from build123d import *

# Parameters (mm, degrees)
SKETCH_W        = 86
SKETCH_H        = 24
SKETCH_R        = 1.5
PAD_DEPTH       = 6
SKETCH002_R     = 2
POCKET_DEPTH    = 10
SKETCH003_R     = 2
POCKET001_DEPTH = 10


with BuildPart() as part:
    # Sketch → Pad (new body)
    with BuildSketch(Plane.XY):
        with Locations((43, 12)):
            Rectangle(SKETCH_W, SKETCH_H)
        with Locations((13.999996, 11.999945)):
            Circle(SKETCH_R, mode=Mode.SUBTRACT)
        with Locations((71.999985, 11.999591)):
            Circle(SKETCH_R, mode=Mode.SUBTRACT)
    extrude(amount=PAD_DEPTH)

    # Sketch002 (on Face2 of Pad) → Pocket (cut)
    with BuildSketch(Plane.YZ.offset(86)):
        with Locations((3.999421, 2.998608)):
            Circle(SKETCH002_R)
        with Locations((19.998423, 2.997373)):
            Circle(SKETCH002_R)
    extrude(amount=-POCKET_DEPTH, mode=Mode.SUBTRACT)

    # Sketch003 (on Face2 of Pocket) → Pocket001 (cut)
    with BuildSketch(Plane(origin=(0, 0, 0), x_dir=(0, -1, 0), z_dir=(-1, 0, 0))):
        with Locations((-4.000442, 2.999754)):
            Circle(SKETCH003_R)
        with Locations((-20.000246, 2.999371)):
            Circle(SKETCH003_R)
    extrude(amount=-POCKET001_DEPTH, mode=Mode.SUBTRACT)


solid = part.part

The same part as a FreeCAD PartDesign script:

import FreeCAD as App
import Part
import Sketcher
Q = App.Units.Quantity

doc = App.newDocument("Part")
params = doc.addObject("Spreadsheet::Sheet", "Params")
for row, (alias, value) in enumerate([
    ("sketch1_diameter", "3 mm"),
    ("sketch1_width", "86 mm"),
    ("sketch1_height", "24 mm"),
    ("pad1_length", "6 mm"),
    ("sketch2_diameter", "4 mm"),
    ("pocket1_length", "10 mm"),
    ("sketch3_diameter", "4 mm"),
    ("pocket2_length", "10 mm"),
], start=1):
    params.set(f"A{row}", alias)
    params.set(f"B{row}", "=" + value)
    params.setAlias(f"B{row}", alias)

body = doc.addObject("PartDesign::Body", "Body")

# Sketch on XY plane
sketch1 = body.newObject("Sketcher::SketchObject", "Sketch")
sketch1.AttachmentSupport = (doc.getObject("XY_Plane"), [""])
sketch1.MapMode = "FlatFace"
sketch1.addGeometry(Part.LineSegment(App.Vector(0, 24, 0), App.Vector(0, 0, 0)), False)
sketch1.addGeometry(Part.LineSegment(App.Vector(0, 0, 0), App.Vector(86, 0, 0)), False)
sketch1.addGeometry(Part.LineSegment(App.Vector(86, 0, 0), App.Vector(86, 24, 0)), False)
sketch1.addGeometry(Part.LineSegment(App.Vector(86, 24, 0), App.Vector(0, 24, 0)), False)
sketch1.addGeometry(Part.Circle(App.Vector(72, 12, 0), App.Vector(0, 0, 1), 1.5), False)
sketch1.addGeometry(Part.Circle(App.Vector(14, 12, 0), App.Vector(0, 0, 1), 1.5), False)
sketch1.addConstraint(Sketcher.Constraint("Coincident", 0, 2, 1, 1))
sketch1.addConstraint(Sketcher.Constraint("Coincident", 1, 2, 2, 1))
sketch1.addConstraint(Sketcher.Constraint("Coincident", 2, 2, 3, 1))
sketch1.addConstraint(Sketcher.Constraint("Coincident", 3, 2, 0, 1))
sketch1.addConstraint(Sketcher.Constraint("Vertical", 0))
sketch1.addConstraint(Sketcher.Constraint("Horizontal", 1))
sketch1.addConstraint(Sketcher.Constraint("Vertical", 2))
sketch1.addConstraint(Sketcher.Constraint("Horizontal", 3))
sketch1.addConstraint(Sketcher.Constraint("Coincident", 0, 2, -1, 1))
sketch1.addConstraint(Sketcher.Constraint("Equal", 4, 5))
sketch1.addConstraint(Sketcher.Constraint("Diameter", 4, Q("3 mm")))
sketch1.addConstraint(Sketcher.Constraint("DistanceX", 1, 1, 1, 2, Q("86 mm")))
sketch1.addConstraint(Sketcher.Constraint("DistanceY", 0, 2, 0, 1, Q("24 mm")))
sketch1.addConstraint(Sketcher.Constraint("DistanceY", -1, 1, 4, 3, Q("11.999591 mm")))
sketch1.addConstraint(Sketcher.Constraint("DistanceX", 5, 3, 4, 3, Q("57.999989 mm")))
sketch1.addConstraint(Sketcher.Constraint("DistanceX", -1, 1, 4, 3, Q("71.999985 mm")))
sketch1.addConstraint(Sketcher.Constraint("DistanceY", -1, 1, 5, 3, Q("11.999945 mm")))
sketch1.setExpression("Constraints[10]", "Params.sketch1_diameter")
sketch1.setExpression("Constraints[11]", "Params.sketch1_width")
sketch1.setExpression("Constraints[12]", "Params.sketch1_height")
pad1 = body.newObject("PartDesign::Pad", "Pad")
pad1.Profile = sketch1
pad1.setExpression("Length", "Params.pad1_length")

# Sketch on YZ plane
sketch2 = body.newObject("Sketcher::SketchObject", "Sketch001")
sketch2.AttachmentSupport = (doc.getObject("YZ_Plane"), [""])
sketch2.MapMode = "FlatFace"
sketch2.AttachmentOffset = App.Placement(App.Vector(0, 0, 86), App.Rotation())
sketch2.addGeometry(Part.Circle(App.Vector(4, 3, 0), App.Vector(0, 0, 1), 2), False)
sketch2.addGeometry(Part.Circle(App.Vector(20, 3, 0), App.Vector(0, 0, 1), 2), False)
sketch2.addConstraint(Sketcher.Constraint("Equal", 0, 1))
sketch2.addConstraint(Sketcher.Constraint("Diameter", 0, Q("4 mm")))
sketch2.addConstraint(Sketcher.Constraint("DistanceX", 0, 3, 1, 3, Q("15.999002 mm")))
sketch2.addConstraint(Sketcher.Constraint("DistanceX", -1, 1, 0, 3, Q("3.999421 mm")))
sketch2.addConstraint(Sketcher.Constraint("DistanceY", -1, 1, 0, 3, Q("2.998608 mm")))
sketch2.addConstraint(Sketcher.Constraint("DistanceY", -1, 1, 1, 3, Q("2.997373 mm")))
sketch2.setExpression("Constraints[1]", "Params.sketch2_diameter")
pocket1 = body.newObject("PartDesign::Pocket", "Pocket")
pocket1.Profile = sketch2
pocket1.setExpression("Length", "Params.pocket1_length")

# Sketch on YZ plane
sketch3 = body.newObject("Sketcher::SketchObject", "Sketch002")
sketch3.AttachmentSupport = (doc.getObject("YZ_Plane"), [""])
sketch3.MapMode = "FlatFace"
sketch3.addGeometry(Part.Circle(App.Vector(4, 3, 0), App.Vector(0, 0, 1), 2), False)
sketch3.addGeometry(Part.Circle(App.Vector(20, 3, 0), App.Vector(0, 0, 1), 2), False)
sketch3.addConstraint(Sketcher.Constraint("Equal", 0, 1))
sketch3.addConstraint(Sketcher.Constraint("Diameter", 0, Q("4 mm")))
sketch3.addConstraint(Sketcher.Constraint("DistanceX", -1, 1, 0, 3, Q("4.000442 mm")))
sketch3.addConstraint(Sketcher.Constraint("DistanceY", -1, 1, 1, 3, Q("2.999371 mm")))
sketch3.addConstraint(Sketcher.Constraint("DistanceY", -1, 1, 0, 3, Q("2.999754 mm")))
sketch3.addConstraint(Sketcher.Constraint("DistanceX", -1, 1, 1, 3, Q("20.000246 mm")))
sketch3.setExpression("Constraints[1]", "Params.sketch3_diameter")
pocket2 = body.newObject("PartDesign::Pocket", "Pocket001")
pocket2.Profile = sketch3
pocket2.setExpression("Length", "Params.pocket2_length")
pocket2.Reversed = True

doc.recompute()
